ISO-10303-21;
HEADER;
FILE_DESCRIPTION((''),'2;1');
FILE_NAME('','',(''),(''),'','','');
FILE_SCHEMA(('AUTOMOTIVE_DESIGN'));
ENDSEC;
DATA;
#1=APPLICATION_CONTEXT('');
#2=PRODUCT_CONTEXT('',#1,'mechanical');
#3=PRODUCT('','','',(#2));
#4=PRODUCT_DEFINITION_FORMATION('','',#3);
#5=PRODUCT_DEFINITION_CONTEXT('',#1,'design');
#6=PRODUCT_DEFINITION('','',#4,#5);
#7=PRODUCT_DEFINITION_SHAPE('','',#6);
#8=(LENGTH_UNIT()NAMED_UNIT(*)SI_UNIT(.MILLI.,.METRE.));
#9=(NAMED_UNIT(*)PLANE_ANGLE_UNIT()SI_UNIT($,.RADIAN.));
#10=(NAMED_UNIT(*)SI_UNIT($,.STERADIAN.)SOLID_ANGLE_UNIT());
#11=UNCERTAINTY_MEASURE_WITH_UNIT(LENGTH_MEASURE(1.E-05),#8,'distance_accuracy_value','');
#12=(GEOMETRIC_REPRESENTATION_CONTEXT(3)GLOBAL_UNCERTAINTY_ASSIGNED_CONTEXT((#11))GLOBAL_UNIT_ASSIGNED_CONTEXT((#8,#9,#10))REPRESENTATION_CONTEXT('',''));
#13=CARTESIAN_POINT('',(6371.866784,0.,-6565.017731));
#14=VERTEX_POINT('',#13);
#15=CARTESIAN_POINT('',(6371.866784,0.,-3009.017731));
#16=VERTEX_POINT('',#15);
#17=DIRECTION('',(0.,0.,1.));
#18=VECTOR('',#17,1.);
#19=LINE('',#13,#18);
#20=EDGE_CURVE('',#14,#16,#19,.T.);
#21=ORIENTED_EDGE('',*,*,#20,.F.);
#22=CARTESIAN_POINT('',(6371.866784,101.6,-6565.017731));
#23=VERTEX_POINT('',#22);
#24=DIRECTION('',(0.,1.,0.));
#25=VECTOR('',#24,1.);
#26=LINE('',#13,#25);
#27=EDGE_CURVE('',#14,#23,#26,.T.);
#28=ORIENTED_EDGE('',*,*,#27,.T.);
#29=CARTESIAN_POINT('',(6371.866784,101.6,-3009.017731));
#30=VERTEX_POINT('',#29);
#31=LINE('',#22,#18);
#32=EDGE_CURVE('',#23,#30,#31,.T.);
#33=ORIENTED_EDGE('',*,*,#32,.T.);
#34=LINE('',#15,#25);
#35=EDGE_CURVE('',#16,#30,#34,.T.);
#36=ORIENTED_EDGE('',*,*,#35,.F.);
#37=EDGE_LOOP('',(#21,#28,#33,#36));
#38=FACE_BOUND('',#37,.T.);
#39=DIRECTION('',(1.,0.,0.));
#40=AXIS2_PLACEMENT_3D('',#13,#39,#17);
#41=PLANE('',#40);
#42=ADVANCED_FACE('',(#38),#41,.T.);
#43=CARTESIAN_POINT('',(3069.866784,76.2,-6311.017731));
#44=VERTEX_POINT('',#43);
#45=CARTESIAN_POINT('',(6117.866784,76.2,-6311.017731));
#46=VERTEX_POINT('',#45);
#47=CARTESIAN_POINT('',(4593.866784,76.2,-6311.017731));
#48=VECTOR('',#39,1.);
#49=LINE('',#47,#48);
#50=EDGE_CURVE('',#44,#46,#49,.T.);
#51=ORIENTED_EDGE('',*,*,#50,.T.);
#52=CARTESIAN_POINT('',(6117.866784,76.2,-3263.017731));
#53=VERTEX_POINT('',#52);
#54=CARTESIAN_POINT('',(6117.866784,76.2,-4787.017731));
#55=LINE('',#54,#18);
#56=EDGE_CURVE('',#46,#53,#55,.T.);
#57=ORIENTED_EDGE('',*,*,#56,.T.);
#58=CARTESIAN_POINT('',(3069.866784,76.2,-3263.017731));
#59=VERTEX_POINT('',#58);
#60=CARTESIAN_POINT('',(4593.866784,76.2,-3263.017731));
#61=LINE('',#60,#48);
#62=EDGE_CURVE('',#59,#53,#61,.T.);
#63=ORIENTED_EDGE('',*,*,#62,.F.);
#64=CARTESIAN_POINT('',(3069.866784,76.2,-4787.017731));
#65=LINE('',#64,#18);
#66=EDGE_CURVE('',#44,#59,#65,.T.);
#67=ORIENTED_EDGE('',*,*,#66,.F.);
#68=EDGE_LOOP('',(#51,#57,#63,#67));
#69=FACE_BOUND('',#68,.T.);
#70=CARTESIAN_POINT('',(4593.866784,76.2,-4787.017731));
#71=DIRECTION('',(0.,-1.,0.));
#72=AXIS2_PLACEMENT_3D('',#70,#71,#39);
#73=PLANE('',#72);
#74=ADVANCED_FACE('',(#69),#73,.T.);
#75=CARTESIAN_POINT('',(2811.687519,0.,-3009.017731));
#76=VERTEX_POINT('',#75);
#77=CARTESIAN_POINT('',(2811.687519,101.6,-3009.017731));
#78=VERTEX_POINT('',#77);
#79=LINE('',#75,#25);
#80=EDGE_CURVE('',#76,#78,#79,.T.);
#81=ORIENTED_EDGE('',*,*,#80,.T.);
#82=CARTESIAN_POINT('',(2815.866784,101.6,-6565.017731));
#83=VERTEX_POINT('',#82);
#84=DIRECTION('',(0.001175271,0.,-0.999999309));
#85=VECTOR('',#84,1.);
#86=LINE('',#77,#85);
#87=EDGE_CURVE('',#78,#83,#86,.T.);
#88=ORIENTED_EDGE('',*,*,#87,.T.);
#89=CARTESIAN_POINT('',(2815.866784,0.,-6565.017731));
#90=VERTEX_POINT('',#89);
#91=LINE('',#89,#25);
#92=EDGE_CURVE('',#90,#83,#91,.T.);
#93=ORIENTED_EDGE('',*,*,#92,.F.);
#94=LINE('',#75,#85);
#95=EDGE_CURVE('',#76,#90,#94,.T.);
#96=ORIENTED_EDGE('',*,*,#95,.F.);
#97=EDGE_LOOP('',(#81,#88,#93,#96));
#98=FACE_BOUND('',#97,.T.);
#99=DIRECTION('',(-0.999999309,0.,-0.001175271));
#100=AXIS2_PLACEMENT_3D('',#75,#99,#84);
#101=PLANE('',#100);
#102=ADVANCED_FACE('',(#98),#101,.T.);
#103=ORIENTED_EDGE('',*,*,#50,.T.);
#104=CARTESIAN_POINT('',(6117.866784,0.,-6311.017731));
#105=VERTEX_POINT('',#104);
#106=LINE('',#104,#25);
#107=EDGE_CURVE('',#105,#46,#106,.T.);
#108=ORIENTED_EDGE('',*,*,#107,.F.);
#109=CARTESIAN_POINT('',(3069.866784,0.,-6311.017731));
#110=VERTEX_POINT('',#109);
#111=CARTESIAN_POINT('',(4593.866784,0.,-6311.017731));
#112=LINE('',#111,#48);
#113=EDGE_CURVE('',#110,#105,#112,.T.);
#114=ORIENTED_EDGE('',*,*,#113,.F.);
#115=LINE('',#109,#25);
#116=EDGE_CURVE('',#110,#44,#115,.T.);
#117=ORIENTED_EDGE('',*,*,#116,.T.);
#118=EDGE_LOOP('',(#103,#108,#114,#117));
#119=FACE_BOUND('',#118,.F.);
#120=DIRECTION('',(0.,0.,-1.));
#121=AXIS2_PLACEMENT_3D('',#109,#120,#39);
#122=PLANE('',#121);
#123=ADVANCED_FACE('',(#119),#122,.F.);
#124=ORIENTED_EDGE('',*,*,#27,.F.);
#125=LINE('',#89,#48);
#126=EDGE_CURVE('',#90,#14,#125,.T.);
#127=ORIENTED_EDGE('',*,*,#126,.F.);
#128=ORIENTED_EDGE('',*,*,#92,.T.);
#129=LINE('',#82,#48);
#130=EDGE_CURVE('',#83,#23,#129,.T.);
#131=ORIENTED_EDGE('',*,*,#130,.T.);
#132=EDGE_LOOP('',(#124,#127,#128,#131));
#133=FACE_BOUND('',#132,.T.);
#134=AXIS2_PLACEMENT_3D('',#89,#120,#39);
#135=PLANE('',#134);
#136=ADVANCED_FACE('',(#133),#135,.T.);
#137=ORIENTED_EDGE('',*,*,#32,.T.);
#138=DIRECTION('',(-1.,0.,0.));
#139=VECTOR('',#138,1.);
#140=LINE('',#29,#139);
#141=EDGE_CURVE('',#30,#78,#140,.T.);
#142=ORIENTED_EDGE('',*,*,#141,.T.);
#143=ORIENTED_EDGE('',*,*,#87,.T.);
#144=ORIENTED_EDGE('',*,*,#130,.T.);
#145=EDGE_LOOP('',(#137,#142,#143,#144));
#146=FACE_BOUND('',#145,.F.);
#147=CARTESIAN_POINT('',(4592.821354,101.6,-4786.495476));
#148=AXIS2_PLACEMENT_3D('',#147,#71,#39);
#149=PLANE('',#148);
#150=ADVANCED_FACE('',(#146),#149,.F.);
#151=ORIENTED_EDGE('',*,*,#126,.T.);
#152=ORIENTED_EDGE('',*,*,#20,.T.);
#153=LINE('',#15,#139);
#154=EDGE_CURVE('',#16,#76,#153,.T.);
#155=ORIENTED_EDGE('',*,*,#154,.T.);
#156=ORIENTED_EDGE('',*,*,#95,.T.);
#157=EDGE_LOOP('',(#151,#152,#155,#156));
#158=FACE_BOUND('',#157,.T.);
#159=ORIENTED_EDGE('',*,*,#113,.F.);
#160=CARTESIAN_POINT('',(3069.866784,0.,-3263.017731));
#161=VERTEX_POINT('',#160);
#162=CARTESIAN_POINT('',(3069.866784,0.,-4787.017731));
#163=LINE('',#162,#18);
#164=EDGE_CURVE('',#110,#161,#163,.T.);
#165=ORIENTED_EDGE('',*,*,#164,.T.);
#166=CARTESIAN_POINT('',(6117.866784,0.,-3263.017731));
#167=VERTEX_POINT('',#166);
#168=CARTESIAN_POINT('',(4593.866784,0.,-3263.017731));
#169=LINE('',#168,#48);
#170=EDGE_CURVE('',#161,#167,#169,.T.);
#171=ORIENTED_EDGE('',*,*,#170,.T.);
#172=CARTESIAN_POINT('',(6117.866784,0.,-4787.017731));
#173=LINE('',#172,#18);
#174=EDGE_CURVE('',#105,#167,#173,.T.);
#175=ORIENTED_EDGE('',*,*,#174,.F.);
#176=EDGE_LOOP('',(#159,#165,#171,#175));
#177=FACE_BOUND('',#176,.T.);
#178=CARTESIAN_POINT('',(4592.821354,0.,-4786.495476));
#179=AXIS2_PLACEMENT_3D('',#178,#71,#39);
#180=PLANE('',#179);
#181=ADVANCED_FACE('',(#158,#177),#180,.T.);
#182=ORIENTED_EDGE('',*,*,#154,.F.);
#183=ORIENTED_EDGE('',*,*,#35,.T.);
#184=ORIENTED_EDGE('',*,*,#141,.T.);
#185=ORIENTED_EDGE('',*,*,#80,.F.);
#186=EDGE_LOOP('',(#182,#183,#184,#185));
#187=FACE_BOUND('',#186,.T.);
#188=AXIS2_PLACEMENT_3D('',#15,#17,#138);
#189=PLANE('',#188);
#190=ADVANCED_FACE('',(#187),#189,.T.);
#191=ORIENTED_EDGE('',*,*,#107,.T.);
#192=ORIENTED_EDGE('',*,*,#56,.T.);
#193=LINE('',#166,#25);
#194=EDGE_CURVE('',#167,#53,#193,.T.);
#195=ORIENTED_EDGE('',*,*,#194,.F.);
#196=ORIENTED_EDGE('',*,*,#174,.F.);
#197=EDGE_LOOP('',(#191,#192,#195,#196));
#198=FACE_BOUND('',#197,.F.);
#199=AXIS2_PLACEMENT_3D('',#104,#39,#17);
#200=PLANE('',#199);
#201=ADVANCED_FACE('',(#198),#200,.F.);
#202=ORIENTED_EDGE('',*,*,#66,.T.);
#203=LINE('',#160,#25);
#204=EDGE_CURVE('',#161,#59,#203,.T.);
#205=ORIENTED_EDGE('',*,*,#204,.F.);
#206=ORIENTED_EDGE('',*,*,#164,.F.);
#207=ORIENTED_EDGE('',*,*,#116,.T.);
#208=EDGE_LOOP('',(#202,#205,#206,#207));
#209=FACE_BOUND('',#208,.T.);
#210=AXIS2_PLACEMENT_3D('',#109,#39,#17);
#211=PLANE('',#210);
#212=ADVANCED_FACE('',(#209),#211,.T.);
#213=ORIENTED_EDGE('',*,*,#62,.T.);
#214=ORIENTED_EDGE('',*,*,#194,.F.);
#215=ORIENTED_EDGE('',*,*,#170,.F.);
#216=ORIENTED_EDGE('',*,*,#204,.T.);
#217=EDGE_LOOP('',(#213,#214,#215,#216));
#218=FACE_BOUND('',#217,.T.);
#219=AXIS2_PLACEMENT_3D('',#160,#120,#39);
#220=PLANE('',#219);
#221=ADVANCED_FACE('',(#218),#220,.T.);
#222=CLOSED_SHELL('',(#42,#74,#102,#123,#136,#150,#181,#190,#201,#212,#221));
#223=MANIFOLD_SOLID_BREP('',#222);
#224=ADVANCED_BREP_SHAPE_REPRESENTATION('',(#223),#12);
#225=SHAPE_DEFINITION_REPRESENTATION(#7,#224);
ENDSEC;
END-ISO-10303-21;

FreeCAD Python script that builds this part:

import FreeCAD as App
import Part
import Sketcher

V = App.Vector
Q = App.Units.Quantity

doc = App.newDocument("Part")
body = doc.addObject("PartDesign::Body", "Body")

# Sketch on XZ plane
sketch1 = body.newObject("Sketcher::SketchObject", "Sketch")
sketch1.AttachmentSupport = (doc.getObject("XZ_Plane"), [""])
sketch1.MapMode = "FlatFace"
sketch1.addGeometry([
    Part.LineSegment(V(2812, -3009, 0), V(2816, -6565, 0)),
    Part.LineSegment(V(2816, -6565, 0), V(6372, -6565, 0)),
    Part.LineSegment(V(6372, -6565, 0), V(6372, -3009, 0)),
    Part.LineSegment(V(6372, -3009, 0), V(2812, -3009, 0)),
], False)
sketch1.addConstraint([
    Sketcher.Constraint("Coincident", 0, 2, 1, 1),
    Sketcher.Constraint("Coincident", 1, 2, 2, 1),
    Sketcher.Constraint("Coincident", 2, 2, 3, 1),
    Sketcher.Constraint("Coincident", 3, 2, 0, 1),
    Sketcher.Constraint("Horizontal", 1),
    Sketcher.Constraint("Vertical", 2),
    Sketcher.Constraint("Horizontal", 3),
    Sketcher.Constraint("Equal", 1, 2),
    Sketcher.Constraint("DistanceX", 1, 1, 1, 2, Q("140 in")),
    Sketcher.Constraint("DistanceX", 3, 2, 3, 1, 3560.179265),
    Sketcher.Constraint("DistanceY", 0, 2, -1, 1, 6565.017731),
    Sketcher.Constraint("DistanceX", -1, 1, 3, 2, 2811.687519),
])
pad1 = body.newObject("PartDesign::Pad", "Pad")
pad1.Profile = sketch1
pad1.Length = Q("4 in")
pad1.Reversed = True

# Sketch on XZ plane
sketch2 = body.newObject("Sketcher::SketchObject", "Sketch001")
sketch2.AttachmentSupport = (doc.getObject("XZ_Plane"), [""])
sketch2.MapMode = "FlatFace"
sketch2.addGeometry([
    Part.LineSegment(V(3070, -3263, 0), V(3070, -6311, 0)),
    Part.LineSegment(V(3070, -6311, 0), V(6118, -6311, 0)),
    Part.LineSegment(V(6118, -6311, 0), V(6118, -3263, 0)),
    Part.LineSegment(V(6118, -3263, 0), V(3070, -3263, 0)),
], False)
sketch2.addConstraint([
    Sketcher.Constraint("Coincident", 0, 2, 1, 1),
    Sketcher.Constraint("Coincident", 1, 2, 2, 1),
    Sketcher.Constraint("Coincident", 2, 2, 3, 1),
    Sketcher.Constraint("Coincident", 3, 2, 0, 1),
    Sketcher.Constraint("Vertical", 0),
    Sketcher.Constraint("Horizontal", 1),
    Sketcher.Constraint("Vertical", 2),
    Sketcher.Constraint("Horizontal", 3),
    Sketcher.Constraint("Equal", 3, 0),
    Sketcher.Constraint("DistanceX", 1, 1, 1, 2, Q("120 in")),
    Sketcher.Constraint("DistanceY", 0, 2, -1, 1, 6311.017731),
    Sketcher.Constraint("DistanceX", -1, 1, 0, 2, 3069.866784),
])
pocket1 = body.newObject("PartDesign::Pocket", "Pocket")
pocket1.Profile = sketch2
pocket1.Length = Q("3 in")

doc.recompute()
